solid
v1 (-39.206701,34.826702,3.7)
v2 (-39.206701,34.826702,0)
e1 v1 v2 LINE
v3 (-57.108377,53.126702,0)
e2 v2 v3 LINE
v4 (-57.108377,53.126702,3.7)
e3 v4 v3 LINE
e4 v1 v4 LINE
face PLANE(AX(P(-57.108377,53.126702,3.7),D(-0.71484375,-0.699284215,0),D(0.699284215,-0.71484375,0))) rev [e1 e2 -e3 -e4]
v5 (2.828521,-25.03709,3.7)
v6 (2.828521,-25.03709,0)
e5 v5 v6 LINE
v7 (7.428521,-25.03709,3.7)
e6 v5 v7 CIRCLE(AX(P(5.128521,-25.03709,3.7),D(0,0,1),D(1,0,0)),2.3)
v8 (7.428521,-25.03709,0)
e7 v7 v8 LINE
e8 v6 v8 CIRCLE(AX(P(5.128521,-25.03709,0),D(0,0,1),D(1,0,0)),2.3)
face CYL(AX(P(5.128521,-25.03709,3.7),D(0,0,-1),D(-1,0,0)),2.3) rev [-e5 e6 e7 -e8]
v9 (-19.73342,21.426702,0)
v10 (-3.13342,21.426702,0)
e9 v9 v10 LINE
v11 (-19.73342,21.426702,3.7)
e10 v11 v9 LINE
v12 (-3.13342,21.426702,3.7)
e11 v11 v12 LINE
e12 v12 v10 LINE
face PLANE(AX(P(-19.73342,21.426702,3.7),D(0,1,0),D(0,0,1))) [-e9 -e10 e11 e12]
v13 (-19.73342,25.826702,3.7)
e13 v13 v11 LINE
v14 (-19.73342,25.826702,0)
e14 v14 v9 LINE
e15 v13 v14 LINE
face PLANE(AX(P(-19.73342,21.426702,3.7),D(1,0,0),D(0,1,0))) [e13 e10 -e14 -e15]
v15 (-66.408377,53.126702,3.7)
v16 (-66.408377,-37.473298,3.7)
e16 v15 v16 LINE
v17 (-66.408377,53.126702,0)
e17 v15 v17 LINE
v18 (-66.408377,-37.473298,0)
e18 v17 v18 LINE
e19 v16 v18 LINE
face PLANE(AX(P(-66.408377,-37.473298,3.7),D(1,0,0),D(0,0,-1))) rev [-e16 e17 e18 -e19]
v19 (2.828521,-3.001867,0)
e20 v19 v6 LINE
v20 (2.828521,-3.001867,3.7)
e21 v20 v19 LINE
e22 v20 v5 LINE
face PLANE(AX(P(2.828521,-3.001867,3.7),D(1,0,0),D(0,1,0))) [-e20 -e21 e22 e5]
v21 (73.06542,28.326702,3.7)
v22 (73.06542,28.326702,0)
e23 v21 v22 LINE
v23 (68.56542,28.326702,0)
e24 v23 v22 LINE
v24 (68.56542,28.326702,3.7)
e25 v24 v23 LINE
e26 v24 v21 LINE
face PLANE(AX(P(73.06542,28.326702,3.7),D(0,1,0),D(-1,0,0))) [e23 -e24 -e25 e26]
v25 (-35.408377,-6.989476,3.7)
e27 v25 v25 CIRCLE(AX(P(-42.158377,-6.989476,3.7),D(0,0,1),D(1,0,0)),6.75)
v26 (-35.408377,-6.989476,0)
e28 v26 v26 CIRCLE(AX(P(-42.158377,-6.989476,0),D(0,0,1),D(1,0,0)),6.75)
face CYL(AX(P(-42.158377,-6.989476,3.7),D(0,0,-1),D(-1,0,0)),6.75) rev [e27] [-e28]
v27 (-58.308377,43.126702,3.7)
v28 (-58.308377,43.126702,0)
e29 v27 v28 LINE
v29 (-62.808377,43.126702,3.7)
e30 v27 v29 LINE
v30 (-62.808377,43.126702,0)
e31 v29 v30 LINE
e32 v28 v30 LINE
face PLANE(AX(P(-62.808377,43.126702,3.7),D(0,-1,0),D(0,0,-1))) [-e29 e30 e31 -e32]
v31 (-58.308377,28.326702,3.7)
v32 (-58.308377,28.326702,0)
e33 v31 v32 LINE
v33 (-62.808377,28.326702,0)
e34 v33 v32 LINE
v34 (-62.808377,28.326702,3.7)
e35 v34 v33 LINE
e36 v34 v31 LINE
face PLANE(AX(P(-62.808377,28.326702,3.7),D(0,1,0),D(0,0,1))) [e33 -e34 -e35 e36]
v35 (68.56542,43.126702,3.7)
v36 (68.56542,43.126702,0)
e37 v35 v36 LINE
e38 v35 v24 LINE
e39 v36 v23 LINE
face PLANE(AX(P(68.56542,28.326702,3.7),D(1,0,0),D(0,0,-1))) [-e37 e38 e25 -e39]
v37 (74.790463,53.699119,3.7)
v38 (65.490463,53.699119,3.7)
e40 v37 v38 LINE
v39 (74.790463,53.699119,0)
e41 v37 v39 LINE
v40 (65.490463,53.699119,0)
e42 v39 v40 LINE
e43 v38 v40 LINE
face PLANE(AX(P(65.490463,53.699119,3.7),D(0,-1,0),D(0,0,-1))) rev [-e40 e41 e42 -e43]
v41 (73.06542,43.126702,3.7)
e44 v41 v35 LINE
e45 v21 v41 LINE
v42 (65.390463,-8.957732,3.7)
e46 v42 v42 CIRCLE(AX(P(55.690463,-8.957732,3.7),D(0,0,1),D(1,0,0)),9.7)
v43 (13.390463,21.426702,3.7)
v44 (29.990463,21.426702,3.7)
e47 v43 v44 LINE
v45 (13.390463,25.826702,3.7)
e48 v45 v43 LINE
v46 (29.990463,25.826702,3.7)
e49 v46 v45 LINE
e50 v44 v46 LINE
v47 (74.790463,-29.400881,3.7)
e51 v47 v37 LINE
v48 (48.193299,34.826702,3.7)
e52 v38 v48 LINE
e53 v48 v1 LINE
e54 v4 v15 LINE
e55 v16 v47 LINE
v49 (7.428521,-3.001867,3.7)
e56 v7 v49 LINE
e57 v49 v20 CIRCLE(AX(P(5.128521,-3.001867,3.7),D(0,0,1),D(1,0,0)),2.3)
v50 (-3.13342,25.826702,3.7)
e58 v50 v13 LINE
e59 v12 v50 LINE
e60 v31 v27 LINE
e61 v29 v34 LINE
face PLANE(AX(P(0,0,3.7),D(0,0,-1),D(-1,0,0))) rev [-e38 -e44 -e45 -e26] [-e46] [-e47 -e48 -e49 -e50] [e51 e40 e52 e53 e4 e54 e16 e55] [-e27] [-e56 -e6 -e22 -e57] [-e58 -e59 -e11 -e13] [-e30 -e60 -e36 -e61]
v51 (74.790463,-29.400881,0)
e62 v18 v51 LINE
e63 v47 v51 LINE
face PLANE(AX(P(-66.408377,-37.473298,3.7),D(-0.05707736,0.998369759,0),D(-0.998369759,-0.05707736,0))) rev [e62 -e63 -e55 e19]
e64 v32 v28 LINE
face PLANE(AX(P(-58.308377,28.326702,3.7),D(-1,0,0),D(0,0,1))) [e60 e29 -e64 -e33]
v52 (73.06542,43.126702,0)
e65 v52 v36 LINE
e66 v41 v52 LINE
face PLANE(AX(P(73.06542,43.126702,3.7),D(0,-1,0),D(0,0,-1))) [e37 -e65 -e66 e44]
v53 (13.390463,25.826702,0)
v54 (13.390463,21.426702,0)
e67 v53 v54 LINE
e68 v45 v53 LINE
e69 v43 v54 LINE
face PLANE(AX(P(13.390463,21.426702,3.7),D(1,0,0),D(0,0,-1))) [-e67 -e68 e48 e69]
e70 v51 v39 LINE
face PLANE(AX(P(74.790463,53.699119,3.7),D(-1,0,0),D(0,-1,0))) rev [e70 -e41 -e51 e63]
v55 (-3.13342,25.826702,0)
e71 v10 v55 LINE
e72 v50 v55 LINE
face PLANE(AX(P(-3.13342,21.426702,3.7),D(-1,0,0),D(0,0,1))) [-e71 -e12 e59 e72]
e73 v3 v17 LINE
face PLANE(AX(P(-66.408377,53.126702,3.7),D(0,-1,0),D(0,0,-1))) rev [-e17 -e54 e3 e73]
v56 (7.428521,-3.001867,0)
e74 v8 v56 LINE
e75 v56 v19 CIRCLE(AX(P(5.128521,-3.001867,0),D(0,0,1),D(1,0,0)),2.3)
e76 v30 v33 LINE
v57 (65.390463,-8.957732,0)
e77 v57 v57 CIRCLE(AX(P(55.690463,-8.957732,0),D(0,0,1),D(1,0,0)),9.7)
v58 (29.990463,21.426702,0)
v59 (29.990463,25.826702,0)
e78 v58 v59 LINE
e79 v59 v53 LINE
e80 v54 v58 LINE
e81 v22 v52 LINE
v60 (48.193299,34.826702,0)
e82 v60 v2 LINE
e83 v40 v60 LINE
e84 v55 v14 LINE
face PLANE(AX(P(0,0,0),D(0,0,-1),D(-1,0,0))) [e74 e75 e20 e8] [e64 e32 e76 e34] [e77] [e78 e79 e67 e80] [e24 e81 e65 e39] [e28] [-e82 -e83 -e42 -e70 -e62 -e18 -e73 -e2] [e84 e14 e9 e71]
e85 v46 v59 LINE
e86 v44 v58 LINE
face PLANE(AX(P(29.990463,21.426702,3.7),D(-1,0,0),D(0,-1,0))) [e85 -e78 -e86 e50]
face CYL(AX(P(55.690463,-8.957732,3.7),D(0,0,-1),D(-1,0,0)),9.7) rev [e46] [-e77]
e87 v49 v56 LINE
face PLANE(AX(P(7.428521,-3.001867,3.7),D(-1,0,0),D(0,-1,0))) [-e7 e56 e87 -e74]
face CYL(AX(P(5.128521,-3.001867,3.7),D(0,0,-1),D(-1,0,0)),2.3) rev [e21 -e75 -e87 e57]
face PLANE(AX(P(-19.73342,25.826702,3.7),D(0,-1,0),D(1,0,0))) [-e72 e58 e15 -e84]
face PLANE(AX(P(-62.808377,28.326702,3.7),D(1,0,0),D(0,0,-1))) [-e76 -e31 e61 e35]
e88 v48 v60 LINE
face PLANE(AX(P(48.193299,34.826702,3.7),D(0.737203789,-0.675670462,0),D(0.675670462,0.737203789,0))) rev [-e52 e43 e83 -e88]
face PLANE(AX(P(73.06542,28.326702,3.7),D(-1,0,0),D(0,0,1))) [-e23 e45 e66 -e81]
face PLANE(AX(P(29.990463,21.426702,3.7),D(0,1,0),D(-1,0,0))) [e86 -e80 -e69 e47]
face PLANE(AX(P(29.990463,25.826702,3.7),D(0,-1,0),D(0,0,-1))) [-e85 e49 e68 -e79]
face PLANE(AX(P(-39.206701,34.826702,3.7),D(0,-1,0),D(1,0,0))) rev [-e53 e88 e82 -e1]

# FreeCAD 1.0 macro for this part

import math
import FreeCAD as App
import Part
import Sketcher

V = App.Vector

doc = App.newDocument("Part")
params = doc.addObject("Spreadsheet::Sheet", "Params")
for row, (alias, value) in enumerate([
    ("sketch1_diameter", "19.4 mm"),
    ("sketch1_diameter2", "13.5 mm"),
    ("sketch1_radius", "2.3 mm"),
    ("sketch1_width", "9.3 mm"),
    ("sketch1_width2", "87.4 mm"),
    ("pad1_length", "3.7 mm"),
], start=1):
    params.set(f"A{row}", alias)
    params.set(f"B{row}", "=" + value)
    params.setAlias(f"B{row}", alias)

body = doc.addObject("PartDesign::Body", "Body")

# Sketch on XY plane
sketch1 = doc.addObject("Sketcher::SketchObject", "Sketch")
body.addObject(sketch1)
sketch1.AttachmentSupport = (doc.XY_Plane, [""])
sketch1.MapMode = "FlatFace"
sketch1.addGeometry([
    Part.LineSegment(V(-66.408377, 53.126702, 0), V(-66.408377, -37.473298, 0)),  # 0
    Part.LineSegment(V(-66.408377, -37.473298, 0), V(74.790463, -29.400881, 0)),  # 1
    Part.LineSegment(V(74.790463, -29.400881, 0), V(74.790463, 53.699119, 0)),  # 2
    Part.LineSegment(V(74.790463, 53.699119, 0), V(65.490463, 53.699119, 0)),  # 3
    Part.LineSegment(V(65.490463, 53.699119, 0), V(48.193299, 34.826702, 0)),  # 4
    Part.LineSegment(V(48.193299, 34.826702, 0), V(-39.206701, 34.826702, 0)),  # 5
    Part.LineSegment(V(-39.206701, 34.826702, 0), V(-57.108377, 53.126702, 0)),  # 6
    Part.LineSegment(V(-57.108377, 53.126702, 0), V(-66.408377, 53.126702, 0)),  # 7
    Part.Circle(V(55.690463, -8.957732, 0), V(0, 0, 1), 9.7),  # 8
    Part.LineSegment(V(7.428521, -3.001867, 0), V(7.428521, -25.03709, 0)),  # 9
    Part.ArcOfCircle(Part.Circle(V(5.128521, -25.03709, 0), V(0, 0, 1), 2.3), math.radians(180), math.radians(360)),  # 10
    Part.LineSegment(V(2.828521, -25.03709, 0), V(2.828521, -3.001867, 0)),  # 11
    Part.ArcOfCircle(Part.Circle(V(5.128521, -3.001867, 0), V(0, 0, 1), 2.3), math.radians(0), math.radians(180)),  # 12
    Part.Circle(V(-42.158377, -6.989476, 0), V(0, 0, 1), 6.75),  # 13
    Part.LineSegment(V(13.390463, 21.426702, 0), V(13.390463, 25.826702, 0)),  # 14
    Part.LineSegment(V(13.390463, 25.826702, 0), V(29.990463, 25.826702, 0)),  # 15
    Part.LineSegment(V(29.990463, 25.826702, 0), V(29.990463, 21.426702, 0)),  # 16
    Part.LineSegment(V(29.990463, 21.426702, 0), V(13.390463, 21.426702, 0)),  # 17
    Part.LineSegment(V(68.56542, 28.326702, 0), V(68.56542, 43.126702, 0)),  # 18
    Part.LineSegment(V(68.56542, 43.126702, 0), V(73.06542, 43.126702, 0)),  # 19
    Part.LineSegment(V(73.06542, 43.126702, 0), V(73.06542, 28.326702, 0)),  # 20
    Part.LineSegment(V(73.06542, 28.326702, 0), V(68.56542, 28.326702, 0)),  # 21
    Part.LineSegment(V(-19.73342, 21.426702, 0), V(-19.73342, 25.826702, 0)),  # 22
    Part.LineSegment(V(-19.73342, 25.826702, 0), V(-3.13342, 25.826702, 0)),  # 23
    Part.LineSegment(V(-3.13342, 25.826702, 0), V(-3.13342, 21.426702, 0)),  # 24
    Part.LineSegment(V(-3.13342, 21.426702, 0), V(-19.73342, 21.426702, 0)),  # 25
    Part.LineSegment(V(-62.808377, 28.326702, 0), V(-62.808377, 43.126702, 0)),  # 26
    Part.LineSegment(V(-62.808377, 43.126702, 0), V(-58.308377, 43.126702, 0)),  # 27
    Part.LineSegment(V(-58.308377, 43.126702, 0), V(-58.308377, 28.326702, 0)),  # 28
    Part.LineSegment(V(-58.308377, 28.326702, 0), V(-62.808377, 28.326702, 0)),  # 29
], False)
sketch1.addConstraint([
    Sketcher.Constraint("Coincident", 0, 2, 1, 1),
    Sketcher.Constraint("Coincident", 1, 2, 2, 1),
    Sketcher.Constraint("Coincident", 2, 2, 3, 1),
    Sketcher.Constraint("Coincident", 3, 2, 4, 1),
    Sketcher.Constraint("Coincident", 4, 2, 5, 1),
    Sketcher.Constraint("Coincident", 5, 2, 6, 1),
    Sketcher.Constraint("Coincident", 6, 2, 7, 1),
    Sketcher.Constraint("Coincident", 7, 2, 0, 1),
    Sketcher.Constraint("Tangent", 9, 2, 10, 2),
    Sketcher.Constraint("Tangent", 10, 1, 11, 1),
    Sketcher.Constraint("Tangent", 11, 2, 12, 2),
    Sketcher.Constraint("Tangent", 12, 1, 9, 1),
    Sketcher.Constraint("Coincident", 14, 2, 15, 1),
    Sketcher.Constraint("Coincident", 15, 2, 16, 1),
    Sketcher.Constraint("Coincident", 16, 2, 17, 1),
    Sketcher.Constraint("Coincident", 17, 2, 14, 1),
    Sketcher.Constraint("Coincident", 18, 2, 19, 1),
    Sketcher.Constraint("Coincident", 19, 2, 20, 1),
    Sketcher.Constraint("Coincident", 20, 2, 21, 1),
    Sketcher.Constraint("Coincident", 21, 2, 18, 1),
    Sketcher.Constraint("Coincident", 22, 2, 23, 1),
    Sketcher.Constraint("Coincident", 23, 2, 24, 1),
    Sketcher.Constraint("Coincident", 24, 2, 25, 1),
    Sketcher.Constraint("Coincident", 25, 2, 22, 1),
    Sketcher.Constraint("Coincident", 26, 2, 27, 1),
    Sketcher.Constraint("Coincident", 27, 2, 28, 1),
    Sketcher.Constraint("Coincident", 28, 2, 29, 1),
    Sketcher.Constraint("Coincident", 29, 2, 26, 1),
    Sketcher.Constraint("Vertical", 0),
    Sketcher.Constraint("Vertical", 2),
    Sketcher.Constraint("Horizontal", 3),
    Sketcher.Constraint("Horizontal", 5),
    Sketcher.Constraint("Horizontal", 7),
    Sketcher.Constraint("Vertical", 9),
    Sketcher.Constraint("Vertical", 11),
    Sketcher.Constraint("Vertical", 14),
    Sketcher.Constraint("Horizontal", 15),
    Sketcher.Constraint("Vertical", 16),
    Sketcher.Constraint("Horizontal", 17),
    Sketcher.Constraint("Vertical", 18),
    Sketcher.Constraint("Horizontal", 19),
    Sketcher.Constraint("Vertical", 20),
    Sketcher.Constraint("Horizontal", 21),
    Sketcher.Constraint("Vertical", 22),
    Sketcher.Constraint("Horizontal", 23),
    Sketcher.Constraint("Vertical", 24),
    Sketcher.Constraint("Horizontal", 25),
    Sketcher.Constraint("Vertical", 26),
    Sketcher.Constraint("Horizontal", 27),
    Sketcher.Constraint("Vertical", 28),
    Sketcher.Constraint("Horizontal", 29),
    Sketcher.Constraint("Horizontal", 15, 2, 22, 2),
    Sketcher.Constraint("Horizontal", 17, 2, 24, 2),
    Sketcher.Constraint("Horizontal", 19, 2, 26, 2),
    Sketcher.Constraint("Horizontal", 21, 2, 28, 2),
    Sketcher.Constraint("Equal", 3, 7),
    Sketcher.Constraint("Equal", 17, 23),
    Sketcher.Constraint("Equal", 21, 27),
    Sketcher.Constraint("Equal", 4, 6),
    Sketcher.Constraint("Diameter", 8, 19.4),
    Sketcher.Constraint("Diameter", 13, 13.5),
    Sketcher.Constraint("Radius", 10, 2.3),
    Sketcher.Constraint("DistanceX", 3, 2, 3, 1, 9.3),
    Sketcher.Constraint("DistanceX", 5, 2, 5, 1, 87.4),
    Sketcher.Constraint("DistanceX", 15, 1, 15, 2, 16.6),
    Sketcher.Constraint("DistanceX", 19, 1, 19, 2, 4.5),
    Sketcher.Constraint("DistanceY", 0, 2, 0, 1, 90.6),
    Sketcher.Constraint("DistanceY", 2, 1, 2, 2, 83.1),
    Sketcher.Constraint("DistanceY", 14, 1, 14, 2, 4.4),
    Sketcher.Constraint("DistanceY", 18, 1, 18, 2, 14.8),
    Sketcher.Constraint("DistanceY", 14, 2, 4, 2, 9.0),
    Sketcher.Constraint("DistanceY", 26, 2, 7, 2, 10.0),
    Sketcher.Constraint("Distance", 4, 25.6),
    Sketcher.Constraint("DistanceX", 8, 3, 1, 2, 19.1),
    Sketcher.Constraint("DistanceY", 0, 2, 5, 2, 72.3),
    Sketcher.Constraint("DistanceX", 7, 2, 26, 2, 3.6),
    Sketcher.Constraint("DistanceX", 0, 2, 13, 3, 24.25),
    Sketcher.Constraint("DistanceY", 0, 2, -1, 1, 37.473298),
    Sketcher.Constraint("DistanceX", -1, 1, 4, 2, 48.193299),
    Sketcher.Constraint("DistanceX", 13, 3, 12, 3, 47.286898),
    Sketcher.Constraint("DistanceY", 9, 2, 9, 1, 22.035223),
    Sketcher.Constraint("DistanceY", 8, 3, -1, 1, 8.957732),
    Sketcher.Constraint("DistanceY", 10, 3, -1, 1, 25.03709),
    Sketcher.Constraint("DistanceY", 1, 2, -1, 1, 29.400881),
    Sketcher.Constraint("DistanceX", -1, 1, 18, 2, 68.56542),
    Sketcher.Constraint("DistanceX", 22, 2, -1, 1, 19.73342),
    Sketcher.Constraint("DistanceY", 13, 3, 12, 3, 3.987609),
    Sketcher.Constraint("DistanceX", 12, 1, 14, 2, 5.961941),
])
sketch1.setExpression("Constraints[59]", "Params.sketch1_diameter")
sketch1.setExpression("Constraints[60]", "Params.sketch1_diameter2")
sketch1.setExpression("Constraints[61]", "Params.sketch1_radius")
sketch1.setExpression("Constraints[62]", "Params.sketch1_width")
sketch1.setExpression("Constraints[63]", "Params.sketch1_width2")
pad1 = doc.addObject("PartDesign::Pad", "Pad")
body.addObject(pad1)
pad1.Profile = sketch1
pad1.setExpression("Length", "Params.pad1_length")

doc.recompute()
